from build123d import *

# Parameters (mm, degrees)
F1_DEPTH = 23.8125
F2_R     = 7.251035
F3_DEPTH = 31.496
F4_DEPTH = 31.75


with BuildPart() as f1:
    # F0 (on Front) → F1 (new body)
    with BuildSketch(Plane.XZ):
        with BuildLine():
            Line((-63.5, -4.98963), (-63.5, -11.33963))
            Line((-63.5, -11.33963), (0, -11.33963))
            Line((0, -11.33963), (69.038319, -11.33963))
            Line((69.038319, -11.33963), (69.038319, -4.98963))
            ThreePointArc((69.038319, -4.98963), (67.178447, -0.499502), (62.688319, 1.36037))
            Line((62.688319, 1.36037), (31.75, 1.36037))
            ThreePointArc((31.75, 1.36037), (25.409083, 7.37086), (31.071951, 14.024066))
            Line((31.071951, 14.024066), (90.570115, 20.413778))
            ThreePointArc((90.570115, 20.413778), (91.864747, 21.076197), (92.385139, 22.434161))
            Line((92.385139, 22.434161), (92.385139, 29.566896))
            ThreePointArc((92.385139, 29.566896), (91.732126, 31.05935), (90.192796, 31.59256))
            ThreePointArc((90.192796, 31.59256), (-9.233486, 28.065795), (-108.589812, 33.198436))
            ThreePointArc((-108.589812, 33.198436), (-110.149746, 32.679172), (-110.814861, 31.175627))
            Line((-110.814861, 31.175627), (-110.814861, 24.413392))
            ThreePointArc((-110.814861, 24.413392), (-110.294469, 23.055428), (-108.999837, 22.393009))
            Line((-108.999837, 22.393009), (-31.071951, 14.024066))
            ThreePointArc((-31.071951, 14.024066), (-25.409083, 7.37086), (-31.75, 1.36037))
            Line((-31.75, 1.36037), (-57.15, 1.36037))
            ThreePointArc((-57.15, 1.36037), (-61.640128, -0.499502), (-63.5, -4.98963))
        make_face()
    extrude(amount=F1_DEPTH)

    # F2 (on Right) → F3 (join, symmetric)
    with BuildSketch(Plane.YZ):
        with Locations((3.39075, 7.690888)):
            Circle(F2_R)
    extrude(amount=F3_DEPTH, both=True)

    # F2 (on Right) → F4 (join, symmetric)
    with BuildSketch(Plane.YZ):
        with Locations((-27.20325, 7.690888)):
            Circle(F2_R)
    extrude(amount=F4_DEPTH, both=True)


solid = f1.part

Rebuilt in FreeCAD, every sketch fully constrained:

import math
import FreeCAD as App
import Part
import Sketcher

V = App.Vector
Q = App.Units.Quantity

doc = App.newDocument("Part")
body = doc.addObject("PartDesign::Body", "Body")

sketch1 = doc.addObject("Sketcher::SketchObject", "Sketch")
body.addObject(sketch1)
sketch1.AttachmentSupport = (doc.XZ_Plane, [""])
sketch1.MapMode = "FlatFace"
sketch1.addGeometry(Part.LineSegment(V(-63.5, -4.98963, 0), V(-63.5, -11.33963, 0)), False)
sketch1.addGeometry(Part.LineSegment(V(-63.5, -11.33963, 0), V(69.038319, -11.33963, 0)), False)
sketch1.addGeometry(Part.LineSegment(V(69.038319, -11.33963, 0), V(69.038319, -4.98963, 0)), False)
sketch1.addGeometry(Part.ArcOfCircle(Part.Circle(V(62.688319, -4.98963, 0), V(0, 0, 1), 6.35), math.radians(0.000002), math.radians(89.999998)), False)
sketch1.addGeometry(Part.LineSegment(V(62.688319, 1.36037, 0), V(31.75, 1.36037, 0)), False)
sketch1.addGeometry(Part.ArcOfCircle(Part.Circle(V(31.750001, 7.71037, 0), V(0, 0, 1), 6.35), math.radians(96.129699), math.radians(269.999994)), False)
sketch1.addGeometry(Part.LineSegment(V(31.071951, 14.024066, 0), V(90.570115, 20.413778, 0)), False)
sketch1.addGeometry(Part.ArcOfCircle(Part.Circle(V(90.353139, 22.434161, 0), V(0, 0, 1), 2.032), math.radians(-83.87029), math.radians(0.000007)), False)
sketch1.addGeometry(Part.LineSegment(V(92.385139, 22.434161, 0), V(92.385139, 29.566896, 0)), False)
sketch1.addGeometry(Part.ArcOfCircle(Part.Circle(V(90.353139, 29.566896, 0), V(0, 0, 1), 2.032), math.radians(0.000001), math.radians(94.525851)), False)
sketch1.addGeometry(Part.ArcOfCircle(Part.Circle(V(0, 1171.028446, 0), V(0, 0, 1), 1142.999947), math.radians(-95.451562), math.radians(-85.474152)), False)
sketch1.addGeometry(Part.ArcOfCircle(Part.Circle(V(-108.78286, 31.175626, 0), V(0, 0, 1), 2.032001), math.radians(84.548456), math.radians(179.999971)), False)
sketch1.addGeometry(Part.LineSegment(V(-110.814861, 31.175627, 0), V(-110.814861, 24.413392, 0)), False)
sketch1.addGeometry(Part.ArcOfCircle(Part.Circle(V(-108.782861, 24.413392, 0), V(0, 0, 1), 2.032), math.radians(179.999993), math.radians(263.87029)), False)
sketch1.addGeometry(Part.LineSegment(V(-108.999837, 22.393009, 0), V(-31.071951, 14.024066, 0)), False)
sketch1.addGeometry(Part.ArcOfCircle(Part.Circle(V(-31.750001, 7.71037, 0), V(0, 0, 1), 6.35), math.radians(-89.999994), math.radians(83.870301)), False)
sketch1.addGeometry(Part.LineSegment(V(-31.75, 1.36037, 0), V(-57.15, 1.36037, 0)), False)
sketch1.addGeometry(Part.ArcOfCircle(Part.Circle(V(-57.15, -4.98963, 0), V(0, 0, 1), 6.35), math.radians(90.000002), math.radians(179.999998)), False)
sketch1.addConstraint(Sketcher.Constraint("Coincident", 0, 2, 1, 1))
sketch1.addConstraint(Sketcher.Constraint("Coincident", 1, 2, 2, 1))
sketch1.addConstraint(Sketcher.Constraint("Coincident", 2, 2, 3, 1))
sketch1.addConstraint(Sketcher.Constraint("Coincident", 3, 2, 4, 1))
sketch1.addConstraint(Sketcher.Constraint("Coincident", 4, 2, 5, 2))
sketch1.addConstraint(Sketcher.Constraint("Coincident", 5, 1, 6, 1))
sketch1.addConstraint(Sketcher.Constraint("Coincident", 6, 2, 7, 1))
sketch1.addConstraint(Sketcher.Constraint("Coincident", 7, 2, 8, 1))
sketch1.addConstraint(Sketcher.Constraint("Coincident", 8, 2, 9, 1))
sketch1.addConstraint(Sketcher.Constraint("Coincident", 9, 2, 10, 2))
sketch1.addConstraint(Sketcher.Constraint("Coincident", 10, 1, 11, 1))
sketch1.addConstraint(Sketcher.Constraint("Coincident", 11, 2, 12, 1))
sketch1.addConstraint(Sketcher.Constraint("Coincident", 12, 2, 13, 1))
sketch1.addConstraint(Sketcher.Constraint("Coincident", 13, 2, 14, 1))
sketch1.addConstraint(Sketcher.Constraint("Coincident", 14, 2, 15, 2))
sketch1.addConstraint(Sketcher.Constraint("Coincident", 15, 1, 16, 1))
sketch1.addConstraint(Sketcher.Constraint("Coincident", 16, 2, 17, 1))
sketch1.addConstraint(Sketcher.Constraint("Coincident", 17, 2, 0, 1))
sketch1.addConstraint(Sketcher.Constraint("Vertical", 0))
sketch1.addConstraint(Sketcher.Constraint("Horizontal", 1))
sketch1.addConstraint(Sketcher.Constraint("Vertical", 2))
sketch1.addConstraint(Sketcher.Constraint("Horizontal", 4))
sketch1.addConstraint(Sketcher.Constraint("Vertical", 8))
sketch1.addConstraint(Sketcher.Constraint("Vertical", 12))
sketch1.addConstraint(Sketcher.Constraint("Horizontal", 16))
sketch1.addConstraint(Sketcher.Constraint("PointOnObject", 10, 3, -2))
sketch1.addConstraint(Sketcher.Constraint("DistanceX", 16, 2, 16, 1, Q("1 in")))
sketch1.addConstraint(Sketcher.Constraint("Radius", 3, Q("0.25 in")))
sketch1.addConstraint(Sketcher.Constraint("Radius", 5, Q("0.25 in")))
sketch1.addConstraint(Sketcher.Constraint("Radius", 7, Q("0.08 in")))
sketch1.addConstraint(Sketcher.Constraint("Radius", 9, Q("0.08 in")))
sketch1.addConstraint(Sketcher.Constraint("Radius", 11, Q("0.08 in")))
sketch1.addConstraint(Sketcher.Constraint("Radius", 13, Q("0.08 in")))
sketch1.addConstraint(Sketcher.Constraint("Radius", 15, Q("0.25 in")))
sketch1.addConstraint(Sketcher.Constraint("Radius", 17, Q("0.25 in")))
sketch1.addConstraint(Sketcher.Constraint("DistanceX", 17, 3, 15, 3, Q("1 in")))
sketch1.addConstraint(Sketcher.Constraint("DistanceX", 17, 3, 15, 1, Q("1 in")))
sketch1.addConstraint(Sketcher.Constraint("DistanceY", 0, 2, 0, 1, Q("0.25 in")))
sketch1.addConstraint(Sketcher.Constraint("DistanceY", 2, 1, 2, 2, Q("0.25 in")))
sketch1.addConstraint(Sketcher.Constraint("DistanceX", 0, 2, -1, 1, Q("2.5 in")))
sketch1.addConstraint(Sketcher.Constraint("DistanceX", 15, 3, 5, 3, Q("2.5000001 in")))
sketch1.addConstraint(Sketcher.Constraint("DistanceY", 3, 3, 15, 3, Q("0.5 in")))
sketch1.addConstraint(Sketcher.Constraint("DistanceY", 2, 2, 5, 3, Q("0.5 in")))
sketch1.addConstraint(Sketcher.Constraint("DistanceX", 15, 1, 4, 2, Q("2.5 in")))
sketch1.addConstraint(Sketcher.Constraint("DistanceX", 11, 3, 9, 3, Q("7.84 in")))
sketch1.addConstraint(Sketcher.Constraint("DistanceX", 3, 2, 2, 2, Q("0.25 in")))
sketch1.addConstraint(Sketcher.Constraint("Radius", 10, 1142.999947))
sketch1.addConstraint(Sketcher.Constraint("DistanceX", 1, 1, 1, 2, 132.538319))
sketch1.addConstraint(Sketcher.Constraint("DistanceY", 7, 3, 9, 2, 9.158399))
sketch1.addConstraint(Sketcher.Constraint("DistanceY", 7, 2, 9, 2, 9.158399))
sketch1.addConstraint(Sketcher.Constraint("DistanceX", 14, 2, 5, 1, 62.143902))
sketch1.addConstraint(Sketcher.Constraint("DistanceY", 8, 1, 8, 2, 7.132735))
sketch1.addConstraint(Sketcher.Constraint("DistanceY", 12, 2, 12, 1, 6.762235))
sketch1.addConstraint(Sketcher.Constraint("DistanceY", 3, 3, -1, 1, 4.98963))
sketch1.addConstraint(Sketcher.Constraint("DistanceX", -1, 1, 7, 3, 90.353139))
sketch1.addConstraint(Sketcher.Constraint("DistanceY", -1, 1, 7, 3, 22.434161))
sketch1.addConstraint(Sketcher.Constraint("DistanceY", -1, 1, 13, 3, 24.413392))
sketch1.addConstraint(Sketcher.Constraint("DistanceX", -1, 1, 5, 1, 31.071951))
sketch1.addConstraint(Sketcher.Constraint("DistanceY", -1, 1, 6, 2, 20.413778))
sketch1.addConstraint(Sketcher.Constraint("DistanceY", -1, 1, 13, 2, 22.393009))
sketch1.addConstraint(Sketcher.Constraint("DistanceX", 9, 2, 6, 2, 0.377319))
sketch1.addConstraint(Sketcher.Constraint("DistanceY", 11, 2, 10, 1, 2.022809))
sketch1.addConstraint(Sketcher.Constraint("DistanceY", -1, 1, 11, 2, 31.175627))
pad1 = doc.addObject("PartDesign::Pad", "Pad")
body.addObject(pad1)
pad1.Profile = sketch1
pad1.Length = Q("0.9375 in")

sketch2 = doc.addObject("Sketcher::SketchObject", "Sketch001")
body.addObject(sketch2)
sketch2.AttachmentSupport = (doc.YZ_Plane, [""])
sketch2.MapMode = "FlatFace"
sketch2.addGeometry(Part.Circle(V(3, 8, 0), V(0, 0, 1), 7), False)
sketch2.addConstraint(Sketcher.Constraint("Diameter", 0, 14.50207))
sketch2.addConstraint(Sketcher.Constraint("DistanceX", -1, 1, 0, 3, 3.39075))
sketch2.addConstraint(Sketcher.Constraint("DistanceY", -1, 1, 0, 3, 7.690888))
pad2 = doc.addObject("PartDesign::Pad", "Pad001")
body.addObject(pad2)
pad2.Profile = sketch2
pad2.Length = Q("2.48 in")
pad2.Midplane = True

sketch3 = doc.addObject("Sketcher::SketchObject", "Sketch002")
body.addObject(sketch3)
sketch3.AttachmentSupport = (doc.YZ_Plane, [""])
sketch3.MapMode = "FlatFace"
sketch3.addGeometry(Part.Circle(V(-27, 8, 0), V(0, 0, 1), 7), False)
sketch3.addConstraint(Sketcher.Constraint("Diameter", 0, 14.50207))
sketch3.addConstraint(Sketcher.Constraint("DistanceX", 0, 3, -1, 1, 27.20325))
sketch3.addConstraint(Sketcher.Constraint("DistanceY", -1, 1, 0, 3, 7.690888))
pad3 = doc.addObject("PartDesign::Pad", "Pad002")
body.addObject(pad3)
pad3.Profile = sketch3
pad3.Length = Q("2.5 in")
pad3.Midplane = True

doc.recompute()
